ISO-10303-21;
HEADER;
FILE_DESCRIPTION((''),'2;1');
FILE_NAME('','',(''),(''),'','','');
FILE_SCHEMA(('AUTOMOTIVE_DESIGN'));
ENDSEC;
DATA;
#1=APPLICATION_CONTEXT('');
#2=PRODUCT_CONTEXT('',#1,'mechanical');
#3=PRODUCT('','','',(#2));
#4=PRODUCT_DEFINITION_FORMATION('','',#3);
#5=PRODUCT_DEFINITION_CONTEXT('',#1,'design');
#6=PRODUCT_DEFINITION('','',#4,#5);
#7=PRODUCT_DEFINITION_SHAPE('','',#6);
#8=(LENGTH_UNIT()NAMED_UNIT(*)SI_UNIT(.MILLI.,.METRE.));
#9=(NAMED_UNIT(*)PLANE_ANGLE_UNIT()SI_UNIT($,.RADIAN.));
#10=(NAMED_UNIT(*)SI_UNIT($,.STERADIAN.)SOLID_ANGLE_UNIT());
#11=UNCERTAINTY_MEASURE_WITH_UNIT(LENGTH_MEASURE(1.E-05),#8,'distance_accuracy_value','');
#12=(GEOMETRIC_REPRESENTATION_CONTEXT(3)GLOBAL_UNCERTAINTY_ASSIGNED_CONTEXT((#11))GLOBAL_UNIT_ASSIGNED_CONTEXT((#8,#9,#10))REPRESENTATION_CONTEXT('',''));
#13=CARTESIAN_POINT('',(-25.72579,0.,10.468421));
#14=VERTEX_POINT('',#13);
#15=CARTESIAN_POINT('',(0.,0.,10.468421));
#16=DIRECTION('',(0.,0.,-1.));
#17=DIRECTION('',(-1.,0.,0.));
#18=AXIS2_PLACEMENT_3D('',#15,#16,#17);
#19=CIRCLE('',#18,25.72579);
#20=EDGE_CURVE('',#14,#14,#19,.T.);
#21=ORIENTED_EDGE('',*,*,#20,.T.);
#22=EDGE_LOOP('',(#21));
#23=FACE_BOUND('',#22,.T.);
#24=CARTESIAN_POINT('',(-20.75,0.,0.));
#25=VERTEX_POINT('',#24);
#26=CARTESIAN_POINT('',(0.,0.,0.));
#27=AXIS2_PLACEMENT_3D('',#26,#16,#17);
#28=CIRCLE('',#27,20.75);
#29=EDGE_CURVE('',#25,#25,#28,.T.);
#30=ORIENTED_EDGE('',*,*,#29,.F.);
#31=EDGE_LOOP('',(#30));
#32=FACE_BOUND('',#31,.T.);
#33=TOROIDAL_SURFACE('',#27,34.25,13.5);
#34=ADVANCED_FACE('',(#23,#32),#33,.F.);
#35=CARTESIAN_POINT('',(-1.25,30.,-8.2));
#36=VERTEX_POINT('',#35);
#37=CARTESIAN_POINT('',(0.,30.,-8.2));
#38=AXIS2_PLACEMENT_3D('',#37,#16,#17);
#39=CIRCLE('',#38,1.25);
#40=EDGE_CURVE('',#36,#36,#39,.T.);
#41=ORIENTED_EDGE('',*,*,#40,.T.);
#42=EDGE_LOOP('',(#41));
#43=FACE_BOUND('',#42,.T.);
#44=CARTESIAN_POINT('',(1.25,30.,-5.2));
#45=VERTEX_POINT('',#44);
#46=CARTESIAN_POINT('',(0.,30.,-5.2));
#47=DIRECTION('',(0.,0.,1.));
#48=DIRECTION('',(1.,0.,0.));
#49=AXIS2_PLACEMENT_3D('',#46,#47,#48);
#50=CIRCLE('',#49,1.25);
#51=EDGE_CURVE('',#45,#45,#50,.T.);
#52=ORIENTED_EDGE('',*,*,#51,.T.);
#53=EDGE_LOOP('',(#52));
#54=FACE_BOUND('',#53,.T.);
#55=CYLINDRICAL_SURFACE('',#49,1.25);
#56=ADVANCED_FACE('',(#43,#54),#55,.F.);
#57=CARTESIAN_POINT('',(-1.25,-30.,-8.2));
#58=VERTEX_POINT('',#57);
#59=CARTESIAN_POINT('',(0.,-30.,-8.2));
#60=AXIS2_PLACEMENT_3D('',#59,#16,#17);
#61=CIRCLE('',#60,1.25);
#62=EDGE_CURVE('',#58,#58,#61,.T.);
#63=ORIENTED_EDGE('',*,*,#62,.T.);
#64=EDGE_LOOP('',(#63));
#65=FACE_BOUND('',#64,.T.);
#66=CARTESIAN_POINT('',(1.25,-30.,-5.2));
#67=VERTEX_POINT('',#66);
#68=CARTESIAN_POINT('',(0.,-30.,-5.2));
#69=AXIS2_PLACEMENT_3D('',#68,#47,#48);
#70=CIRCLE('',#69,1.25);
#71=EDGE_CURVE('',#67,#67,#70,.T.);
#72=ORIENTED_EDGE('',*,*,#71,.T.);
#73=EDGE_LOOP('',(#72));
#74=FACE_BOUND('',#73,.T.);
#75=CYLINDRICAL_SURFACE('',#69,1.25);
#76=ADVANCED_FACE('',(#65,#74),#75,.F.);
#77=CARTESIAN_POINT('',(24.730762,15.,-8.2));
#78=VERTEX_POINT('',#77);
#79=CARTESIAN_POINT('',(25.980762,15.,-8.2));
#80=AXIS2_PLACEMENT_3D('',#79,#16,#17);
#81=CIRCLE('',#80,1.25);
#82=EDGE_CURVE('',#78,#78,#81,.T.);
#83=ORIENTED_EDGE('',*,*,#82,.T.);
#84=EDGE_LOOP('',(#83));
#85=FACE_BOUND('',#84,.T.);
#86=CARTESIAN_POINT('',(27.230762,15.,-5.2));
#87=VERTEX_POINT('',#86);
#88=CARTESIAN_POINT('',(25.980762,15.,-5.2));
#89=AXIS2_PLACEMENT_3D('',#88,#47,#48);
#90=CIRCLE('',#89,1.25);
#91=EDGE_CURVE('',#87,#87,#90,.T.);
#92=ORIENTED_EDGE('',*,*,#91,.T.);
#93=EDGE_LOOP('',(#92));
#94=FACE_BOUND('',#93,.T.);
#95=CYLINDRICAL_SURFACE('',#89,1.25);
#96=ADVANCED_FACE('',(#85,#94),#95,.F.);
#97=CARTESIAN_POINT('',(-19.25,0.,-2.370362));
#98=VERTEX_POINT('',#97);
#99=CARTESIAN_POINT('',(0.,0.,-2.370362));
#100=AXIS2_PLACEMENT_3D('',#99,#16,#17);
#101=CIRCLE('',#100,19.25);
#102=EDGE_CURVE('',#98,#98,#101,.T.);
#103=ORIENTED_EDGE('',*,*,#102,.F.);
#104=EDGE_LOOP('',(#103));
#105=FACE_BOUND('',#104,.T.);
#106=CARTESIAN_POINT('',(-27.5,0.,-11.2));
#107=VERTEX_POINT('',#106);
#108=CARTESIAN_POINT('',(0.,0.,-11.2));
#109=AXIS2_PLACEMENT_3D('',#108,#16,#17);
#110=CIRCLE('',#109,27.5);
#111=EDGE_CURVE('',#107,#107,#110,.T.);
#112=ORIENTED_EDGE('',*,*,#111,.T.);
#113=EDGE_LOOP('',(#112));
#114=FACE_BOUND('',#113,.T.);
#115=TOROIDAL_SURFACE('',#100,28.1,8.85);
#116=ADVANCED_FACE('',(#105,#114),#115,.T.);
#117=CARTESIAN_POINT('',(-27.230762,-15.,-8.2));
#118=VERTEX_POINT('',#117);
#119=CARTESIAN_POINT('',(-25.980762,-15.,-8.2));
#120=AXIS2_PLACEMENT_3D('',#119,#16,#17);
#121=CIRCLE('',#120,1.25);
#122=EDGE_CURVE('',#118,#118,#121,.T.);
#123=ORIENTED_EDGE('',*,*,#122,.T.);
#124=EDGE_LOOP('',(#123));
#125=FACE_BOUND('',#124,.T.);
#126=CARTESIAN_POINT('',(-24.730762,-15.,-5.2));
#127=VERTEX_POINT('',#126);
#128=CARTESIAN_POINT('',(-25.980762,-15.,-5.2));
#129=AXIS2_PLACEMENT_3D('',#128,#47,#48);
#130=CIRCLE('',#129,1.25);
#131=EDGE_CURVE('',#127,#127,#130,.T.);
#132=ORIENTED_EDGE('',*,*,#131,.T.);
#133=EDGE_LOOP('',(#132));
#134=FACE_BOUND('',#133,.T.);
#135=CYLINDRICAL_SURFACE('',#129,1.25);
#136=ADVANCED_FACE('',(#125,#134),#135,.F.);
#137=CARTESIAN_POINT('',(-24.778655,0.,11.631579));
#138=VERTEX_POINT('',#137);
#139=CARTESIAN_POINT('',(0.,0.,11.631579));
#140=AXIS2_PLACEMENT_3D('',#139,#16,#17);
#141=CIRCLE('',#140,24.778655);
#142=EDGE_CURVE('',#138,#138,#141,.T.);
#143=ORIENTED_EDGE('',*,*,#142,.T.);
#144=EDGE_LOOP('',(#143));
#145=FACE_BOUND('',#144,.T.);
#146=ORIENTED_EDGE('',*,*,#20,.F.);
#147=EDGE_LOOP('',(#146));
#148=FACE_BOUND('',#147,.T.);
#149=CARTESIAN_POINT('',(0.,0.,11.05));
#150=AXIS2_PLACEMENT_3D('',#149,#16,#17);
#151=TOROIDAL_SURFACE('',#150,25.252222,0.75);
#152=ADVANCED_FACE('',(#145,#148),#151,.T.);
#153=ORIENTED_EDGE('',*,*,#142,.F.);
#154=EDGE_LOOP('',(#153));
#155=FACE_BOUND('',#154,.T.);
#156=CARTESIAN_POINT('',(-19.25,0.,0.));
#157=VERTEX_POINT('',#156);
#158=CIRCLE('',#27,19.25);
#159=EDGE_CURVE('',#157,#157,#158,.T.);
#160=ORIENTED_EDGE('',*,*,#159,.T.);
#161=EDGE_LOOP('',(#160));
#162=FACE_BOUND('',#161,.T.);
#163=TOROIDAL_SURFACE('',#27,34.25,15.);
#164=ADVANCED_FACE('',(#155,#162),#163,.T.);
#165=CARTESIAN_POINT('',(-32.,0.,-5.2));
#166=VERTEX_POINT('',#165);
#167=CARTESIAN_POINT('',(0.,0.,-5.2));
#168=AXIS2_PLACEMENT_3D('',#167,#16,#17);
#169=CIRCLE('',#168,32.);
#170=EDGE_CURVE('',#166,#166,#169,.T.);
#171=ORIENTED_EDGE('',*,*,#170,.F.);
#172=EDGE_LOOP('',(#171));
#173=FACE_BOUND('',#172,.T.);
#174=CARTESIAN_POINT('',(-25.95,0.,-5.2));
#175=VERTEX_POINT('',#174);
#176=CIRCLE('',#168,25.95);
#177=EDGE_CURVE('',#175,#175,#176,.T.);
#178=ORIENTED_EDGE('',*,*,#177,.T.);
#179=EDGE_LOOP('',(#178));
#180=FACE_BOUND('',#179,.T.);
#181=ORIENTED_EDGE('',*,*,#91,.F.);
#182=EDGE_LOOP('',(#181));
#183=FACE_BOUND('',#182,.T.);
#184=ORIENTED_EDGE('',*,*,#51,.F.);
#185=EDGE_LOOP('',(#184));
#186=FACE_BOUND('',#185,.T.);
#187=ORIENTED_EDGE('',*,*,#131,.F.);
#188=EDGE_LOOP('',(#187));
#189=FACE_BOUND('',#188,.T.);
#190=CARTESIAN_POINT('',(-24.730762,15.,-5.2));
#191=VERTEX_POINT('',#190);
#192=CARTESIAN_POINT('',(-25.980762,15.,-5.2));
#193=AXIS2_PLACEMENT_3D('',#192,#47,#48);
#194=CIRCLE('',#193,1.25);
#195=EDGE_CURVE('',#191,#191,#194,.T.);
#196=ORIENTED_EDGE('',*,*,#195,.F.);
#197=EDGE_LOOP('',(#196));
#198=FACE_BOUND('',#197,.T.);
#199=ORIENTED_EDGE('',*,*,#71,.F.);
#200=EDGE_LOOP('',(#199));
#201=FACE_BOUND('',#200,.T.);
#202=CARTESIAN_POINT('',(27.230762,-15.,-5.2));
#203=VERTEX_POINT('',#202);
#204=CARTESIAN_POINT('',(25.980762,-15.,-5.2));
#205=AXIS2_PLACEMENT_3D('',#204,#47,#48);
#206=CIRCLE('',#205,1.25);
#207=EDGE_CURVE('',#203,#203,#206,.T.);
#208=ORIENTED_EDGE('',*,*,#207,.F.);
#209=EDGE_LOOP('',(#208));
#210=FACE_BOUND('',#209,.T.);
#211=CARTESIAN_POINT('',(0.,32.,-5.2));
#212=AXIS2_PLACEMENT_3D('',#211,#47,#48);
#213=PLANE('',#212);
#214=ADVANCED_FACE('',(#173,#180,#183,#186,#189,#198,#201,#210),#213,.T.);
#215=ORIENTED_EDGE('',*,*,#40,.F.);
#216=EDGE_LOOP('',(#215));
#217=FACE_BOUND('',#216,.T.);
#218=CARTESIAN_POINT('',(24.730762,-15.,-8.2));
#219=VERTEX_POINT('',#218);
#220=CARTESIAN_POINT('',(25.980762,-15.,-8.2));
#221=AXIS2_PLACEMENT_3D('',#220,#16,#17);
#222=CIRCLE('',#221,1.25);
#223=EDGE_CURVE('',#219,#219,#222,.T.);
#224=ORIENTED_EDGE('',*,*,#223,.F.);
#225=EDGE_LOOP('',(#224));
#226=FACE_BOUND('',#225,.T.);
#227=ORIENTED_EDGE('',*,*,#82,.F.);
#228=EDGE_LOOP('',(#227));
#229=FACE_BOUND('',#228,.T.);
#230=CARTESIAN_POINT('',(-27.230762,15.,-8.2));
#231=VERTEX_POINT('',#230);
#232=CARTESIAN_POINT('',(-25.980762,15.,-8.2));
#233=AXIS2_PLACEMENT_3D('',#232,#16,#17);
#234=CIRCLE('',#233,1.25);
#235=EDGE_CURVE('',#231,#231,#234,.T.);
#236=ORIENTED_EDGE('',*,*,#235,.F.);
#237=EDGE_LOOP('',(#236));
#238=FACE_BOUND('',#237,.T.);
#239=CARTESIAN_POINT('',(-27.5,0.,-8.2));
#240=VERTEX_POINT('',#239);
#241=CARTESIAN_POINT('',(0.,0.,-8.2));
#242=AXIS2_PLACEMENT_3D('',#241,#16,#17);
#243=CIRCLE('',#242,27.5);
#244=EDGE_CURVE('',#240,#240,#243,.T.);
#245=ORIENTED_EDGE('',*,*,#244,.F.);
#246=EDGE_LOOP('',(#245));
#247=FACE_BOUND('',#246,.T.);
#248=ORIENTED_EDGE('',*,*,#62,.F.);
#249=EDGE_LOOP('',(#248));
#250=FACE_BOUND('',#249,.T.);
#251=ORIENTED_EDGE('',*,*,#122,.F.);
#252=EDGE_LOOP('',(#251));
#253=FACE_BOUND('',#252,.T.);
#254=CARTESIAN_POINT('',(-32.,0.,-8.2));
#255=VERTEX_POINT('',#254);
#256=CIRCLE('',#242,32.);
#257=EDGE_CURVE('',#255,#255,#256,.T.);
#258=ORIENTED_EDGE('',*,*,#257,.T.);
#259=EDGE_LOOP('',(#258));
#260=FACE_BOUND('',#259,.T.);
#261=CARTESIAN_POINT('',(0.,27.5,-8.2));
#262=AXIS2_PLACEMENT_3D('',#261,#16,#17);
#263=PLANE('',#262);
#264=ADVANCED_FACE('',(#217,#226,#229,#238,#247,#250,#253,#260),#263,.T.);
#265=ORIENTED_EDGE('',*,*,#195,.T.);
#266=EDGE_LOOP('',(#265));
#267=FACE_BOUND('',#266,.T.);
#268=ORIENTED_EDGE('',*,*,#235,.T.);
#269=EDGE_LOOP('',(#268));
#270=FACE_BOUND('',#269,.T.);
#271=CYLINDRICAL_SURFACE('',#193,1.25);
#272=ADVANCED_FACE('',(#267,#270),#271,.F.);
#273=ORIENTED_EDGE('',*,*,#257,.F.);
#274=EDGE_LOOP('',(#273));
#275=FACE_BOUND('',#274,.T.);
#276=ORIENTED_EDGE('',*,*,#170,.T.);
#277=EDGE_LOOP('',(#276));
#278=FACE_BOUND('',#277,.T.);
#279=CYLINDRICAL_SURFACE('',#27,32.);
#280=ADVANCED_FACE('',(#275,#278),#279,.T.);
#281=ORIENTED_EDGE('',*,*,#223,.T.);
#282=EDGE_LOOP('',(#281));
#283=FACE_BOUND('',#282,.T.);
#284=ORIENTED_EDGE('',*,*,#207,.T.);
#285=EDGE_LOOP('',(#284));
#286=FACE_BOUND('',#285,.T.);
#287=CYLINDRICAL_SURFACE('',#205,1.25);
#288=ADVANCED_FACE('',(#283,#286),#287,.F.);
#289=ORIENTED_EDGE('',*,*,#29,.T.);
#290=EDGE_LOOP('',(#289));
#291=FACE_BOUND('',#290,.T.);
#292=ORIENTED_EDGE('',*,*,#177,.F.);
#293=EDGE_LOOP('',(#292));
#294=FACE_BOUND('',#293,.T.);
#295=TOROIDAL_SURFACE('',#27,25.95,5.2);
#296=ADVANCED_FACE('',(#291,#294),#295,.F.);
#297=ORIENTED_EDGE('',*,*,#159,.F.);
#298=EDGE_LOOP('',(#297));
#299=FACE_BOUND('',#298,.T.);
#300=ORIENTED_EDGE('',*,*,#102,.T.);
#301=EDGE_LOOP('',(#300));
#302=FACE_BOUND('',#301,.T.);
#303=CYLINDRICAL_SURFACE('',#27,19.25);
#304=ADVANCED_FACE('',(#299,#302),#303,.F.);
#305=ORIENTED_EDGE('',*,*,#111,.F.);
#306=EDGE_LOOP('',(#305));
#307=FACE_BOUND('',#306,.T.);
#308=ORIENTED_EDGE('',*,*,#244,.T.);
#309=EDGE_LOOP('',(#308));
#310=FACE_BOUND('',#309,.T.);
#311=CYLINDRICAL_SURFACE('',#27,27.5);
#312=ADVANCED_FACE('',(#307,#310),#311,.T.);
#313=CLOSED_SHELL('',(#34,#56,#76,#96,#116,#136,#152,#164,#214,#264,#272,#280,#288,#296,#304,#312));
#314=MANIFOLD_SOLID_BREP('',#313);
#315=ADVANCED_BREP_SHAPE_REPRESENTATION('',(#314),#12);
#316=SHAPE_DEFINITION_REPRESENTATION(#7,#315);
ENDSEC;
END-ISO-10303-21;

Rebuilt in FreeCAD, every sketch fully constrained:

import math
import FreeCAD as App
import Part
import Sketcher
from FreeCAD import Vector
Q = App.Units.Quantity


def add_polygon(sketch, points):
    """Adds a closed chain of lines whose ends are joined by coincident constraints."""
    first, n = sketch.GeometryCount, len(points)
    for a, b in zip(points, points[1:] + points[:1]):
        sketch.addGeometry(Part.LineSegment(App.Vector(*a, 0), App.Vector(*b, 0)), False)
    for i in range(n):
        sketch.addConstraint(Sketcher.Constraint("Coincident", first + i, 2, first + (i + 1) % n, 1))

doc = App.newDocument("Part")
body = doc.addObject("PartDesign::Body", "Body")

sketch1 = body.newObject("Sketcher::SketchObject", "Sketch")
sketch1.AttachmentSupport = (doc.getObject("YZ_Plane"), [""])
sketch1.MapMode = "FlatFace"
sketch1.addGeometry([
    Part.LineSegment(Vector(19.2, 0, 0), Vector(19.2, -2.4, 0)),
    Part.ArcOfCircle(Part.Circle(Vector(28.1, -2.4, 0), Vector(0, 0, 1), 8.8), math.radians(180), math.radians(266)),
    Part.LineSegment(Vector(27.5, -11.2, 0), Vector(27.5, -8.2, 0)),
    Part.LineSegment(Vector(27.5, -8.2, 0), Vector(32, -8.2, 0)),
    Part.LineSegment(Vector(32, -8.2, 0), Vector(32, -5.2, 0)),
    Part.LineSegment(Vector(32, -5.2, 0), Vector(25.9, -5.2, 0)),
    Part.ArcOfCircle(Part.Circle(Vector(26, 0, 0), Vector(0, 0, 1), 5.2), math.radians(-180), math.radians(-90)),
    Part.ArcOfCircle(Part.Circle(Vector(34.3, 0, 0), Vector(0, 0, 1), 13.5), math.radians(129), math.radians(180)),
    Part.ArcOfCircle(Part.Circle(Vector(25.3, 11.1, 0), Vector(0, 0, 1), 0.8), math.radians(-51), math.radians(129)),
    Part.ArcOfCircle(Part.Circle(Vector(34.2, 0, 0), Vector(0, 0, 1), 15), math.radians(129), math.radians(180)),
], False)
sketch1.addConstraint([
    Sketcher.Constraint("Tangent", 0, 2, 1, 1),
    Sketcher.Constraint("Coincident", 1, 2, 2, 1),
    Sketcher.Constraint("Coincident", 2, 2, 3, 1),
    Sketcher.Constraint("Coincident", 3, 2, 4, 1),
    Sketcher.Constraint("Coincident", 4, 2, 5, 1),
    Sketcher.Constraint("Tangent", 5, 2, 6, 2),
    Sketcher.Constraint("Tangent", 6, 1, 7, 2),
    Sketcher.Constraint("Tangent", 7, 1, 8, 1),
    Sketcher.Constraint("Tangent", 8, 2, 9, 1),
    Sketcher.Constraint("Tangent", 9, 2, 0, 1),
    Sketcher.Constraint("Vertical", 0),
    Sketcher.Constraint("Vertical", 2),
    Sketcher.Constraint("Horizontal", 3),
    Sketcher.Constraint("Vertical", 4),
    Sketcher.Constraint("Horizontal", 5),
    Sketcher.Constraint("Coincident", 9, 3, 7, 3),
    Sketcher.Constraint("PointOnObject", 6, 3, -1),
    Sketcher.Constraint("PointOnObject", 7, 3, -1),
    Sketcher.Constraint("Equal", 2, 4),
    Sketcher.Constraint("Radius", 9, Q("15 mm")),
    Sketcher.Constraint("Radius", 6, Q("5.2 mm")),
    Sketcher.Constraint("Radius", 7, Q("13.5 mm")),
    Sketcher.Constraint("DistanceY", 2, 1, 2, 2, Q("3 mm")),
    Sketcher.Constraint("Radius", 1, Q("8.85 mm")),
    Sketcher.Constraint("DistanceX", 3, 1, 3, 2, Q("4.5 mm")),
    Sketcher.Constraint("DistanceX", -1, 1, 3, 2, Q("32 mm")),
    Sketcher.Constraint("DistanceX", 5, 2, 5, 1, Q("6.05 mm")),
    Sketcher.Constraint("DistanceY", -1, 1, 8, 3, Q("11.05 mm")),
])
revolution = body.newObject("PartDesign::Revolution", "Revolution")
revolution.Profile = sketch1
revolution.ReferenceAxis = (sketch1, ["V_Axis"])
revolution.Angle = 360

sketch2 = body.newObject("Sketcher::SketchObject", "Sketch001")
sketch2.AttachmentSupport = (doc.getObject("YZ_Plane"), [""])
sketch2.MapMode = "FlatFace"
add_polygon(sketch2, [(30, -29), (30, -5.2), (28.8, -5.2), (28.8, -28.2)])
sketch2.addGeometry(Part.LineSegment(Vector(30, -5.2, 0), Vector(30, -29, 0)), True)
sketch2.addConstraint([
    Sketcher.Constraint("Vertical", 0),
    Sketcher.Constraint("Horizontal", 1),
    Sketcher.Constraint("Vertical", 2),
    Sketcher.Constraint("Vertical", 4),
    Sketcher.Constraint("Coincident", 4, 1, 0, 2),
    Sketcher.Constraint("Equal", 0, 4),
    Sketcher.Constraint("DistanceY", 2, 2, 2, 1, Q("23 mm")),
    Sketcher.Constraint("Angle", 3, Q("-31 deg")),
    Sketcher.Constraint("DistanceX", -1, 1, 0, 2, Q("30 mm")),
    Sketcher.Constraint("DistanceX", 1, 2, 1, 1, Q("1.25 mm")),
    Sketcher.Constraint("DistanceY", 0, 2, -1, 1, Q("5.2 mm")),
])
groove = body.newObject("PartDesign::Groove", "Groove")
groove.Profile = sketch2
groove.ReferenceAxis = (sketch2, ["Axis0"])
groove.Angle = 360
doc.recompute()

polarpattern = body.newObject("PartDesign::PolarPattern", "PolarPattern")
polarpattern.Originals = [groove]
polarpattern.Axis = (doc.getObject("Z_Axis"), [""])
polarpattern.Angle = 360
polarpattern.Occurrences = 6
body.Tip = polarpattern

doc.recompute()
